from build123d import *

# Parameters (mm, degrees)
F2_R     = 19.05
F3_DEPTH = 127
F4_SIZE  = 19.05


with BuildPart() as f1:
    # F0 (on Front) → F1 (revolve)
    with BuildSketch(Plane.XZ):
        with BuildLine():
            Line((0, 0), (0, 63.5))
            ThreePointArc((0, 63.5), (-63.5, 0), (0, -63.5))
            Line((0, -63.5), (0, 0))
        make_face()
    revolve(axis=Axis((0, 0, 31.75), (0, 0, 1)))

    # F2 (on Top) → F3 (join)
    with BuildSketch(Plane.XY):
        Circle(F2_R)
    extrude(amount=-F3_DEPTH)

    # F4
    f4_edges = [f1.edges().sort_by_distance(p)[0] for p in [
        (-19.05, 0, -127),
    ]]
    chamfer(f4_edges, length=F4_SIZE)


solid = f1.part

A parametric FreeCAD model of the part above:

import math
import FreeCAD as App
import Part
import Sketcher

V = App.Vector
Q = App.Units.Quantity


def edges_at(feature, points):
    """Names of the edges that pass closest to the given points."""
    edges = feature.Shape.Edges
    near = lambda p: min(range(len(edges)), key=lambda i: edges[i].distToShape(Part.Vertex(*p))[0])
    return sorted({f"Edge{near(p) + 1}" for p in points})

doc = App.newDocument("Part")
body = doc.addObject("PartDesign::Body", "Body")

sketch1 = body.newObject("Sketcher::SketchObject", "Sketch")
sketch1.AttachmentSupport = (doc.getObject("XZ_Plane"), [""])
sketch1.MapMode = "FlatFace"
sketch1.addGeometry(Part.ArcOfCircle(Part.Circle(V(0, 0, 0), V(0, 0, 1), 64), math.radians(90), math.radians(270)), False)
sketch1.addGeometry(Part.LineSegment(V(0, -64, 0), V(0, 64, 0)), False)
sketch1.addConstraint(Sketcher.Constraint("Coincident", 0, 1, 1, 2))
sketch1.addConstraint(Sketcher.Constraint("Coincident", 1, 1, 0, 2))
sketch1.addConstraint(Sketcher.Constraint("Vertical", 1))
sketch1.addConstraint(Sketcher.Constraint("Coincident", 0, 3, -1, 1))
sketch1.addConstraint(Sketcher.Constraint("PointOnObject", 0, 1, -2))
sketch1.addConstraint(Sketcher.Constraint("Radius", 0, Q("2.5 in")))
revolution = body.newObject("PartDesign::Revolution", "Revolution")
revolution.Profile = sketch1
revolution.ReferenceAxis = (sketch1, ["V_Axis"])
revolution.Angle = 360

sketch2 = body.newObject("Sketcher::SketchObject", "Sketch001")
sketch2.AttachmentSupport = (doc.getObject("XY_Plane"), [""])
sketch2.MapMode = "FlatFace"
sketch2.addGeometry(Part.Circle(V(0, 0, 0), V(0, 0, 1), 19), False)
sketch2.addConstraint(Sketcher.Constraint("Coincident", 0, 3, -1, 1))
sketch2.addConstraint(Sketcher.Constraint("Diameter", 0, Q("1.5 in")))
pad1 = body.newObject("PartDesign::Pad", "Pad")
pad1.Profile = sketch2
pad1.Length = Q("5 in")
pad1.Reversed = True
doc.recompute()

chamfer = body.newObject("PartDesign::Chamfer", "Chamfer")
chamfer.Base = (pad1, edges_at(pad1, [(-19.05, 0, -127)]))
chamfer.Size = Q("0.75 in")

doc.recompute()
